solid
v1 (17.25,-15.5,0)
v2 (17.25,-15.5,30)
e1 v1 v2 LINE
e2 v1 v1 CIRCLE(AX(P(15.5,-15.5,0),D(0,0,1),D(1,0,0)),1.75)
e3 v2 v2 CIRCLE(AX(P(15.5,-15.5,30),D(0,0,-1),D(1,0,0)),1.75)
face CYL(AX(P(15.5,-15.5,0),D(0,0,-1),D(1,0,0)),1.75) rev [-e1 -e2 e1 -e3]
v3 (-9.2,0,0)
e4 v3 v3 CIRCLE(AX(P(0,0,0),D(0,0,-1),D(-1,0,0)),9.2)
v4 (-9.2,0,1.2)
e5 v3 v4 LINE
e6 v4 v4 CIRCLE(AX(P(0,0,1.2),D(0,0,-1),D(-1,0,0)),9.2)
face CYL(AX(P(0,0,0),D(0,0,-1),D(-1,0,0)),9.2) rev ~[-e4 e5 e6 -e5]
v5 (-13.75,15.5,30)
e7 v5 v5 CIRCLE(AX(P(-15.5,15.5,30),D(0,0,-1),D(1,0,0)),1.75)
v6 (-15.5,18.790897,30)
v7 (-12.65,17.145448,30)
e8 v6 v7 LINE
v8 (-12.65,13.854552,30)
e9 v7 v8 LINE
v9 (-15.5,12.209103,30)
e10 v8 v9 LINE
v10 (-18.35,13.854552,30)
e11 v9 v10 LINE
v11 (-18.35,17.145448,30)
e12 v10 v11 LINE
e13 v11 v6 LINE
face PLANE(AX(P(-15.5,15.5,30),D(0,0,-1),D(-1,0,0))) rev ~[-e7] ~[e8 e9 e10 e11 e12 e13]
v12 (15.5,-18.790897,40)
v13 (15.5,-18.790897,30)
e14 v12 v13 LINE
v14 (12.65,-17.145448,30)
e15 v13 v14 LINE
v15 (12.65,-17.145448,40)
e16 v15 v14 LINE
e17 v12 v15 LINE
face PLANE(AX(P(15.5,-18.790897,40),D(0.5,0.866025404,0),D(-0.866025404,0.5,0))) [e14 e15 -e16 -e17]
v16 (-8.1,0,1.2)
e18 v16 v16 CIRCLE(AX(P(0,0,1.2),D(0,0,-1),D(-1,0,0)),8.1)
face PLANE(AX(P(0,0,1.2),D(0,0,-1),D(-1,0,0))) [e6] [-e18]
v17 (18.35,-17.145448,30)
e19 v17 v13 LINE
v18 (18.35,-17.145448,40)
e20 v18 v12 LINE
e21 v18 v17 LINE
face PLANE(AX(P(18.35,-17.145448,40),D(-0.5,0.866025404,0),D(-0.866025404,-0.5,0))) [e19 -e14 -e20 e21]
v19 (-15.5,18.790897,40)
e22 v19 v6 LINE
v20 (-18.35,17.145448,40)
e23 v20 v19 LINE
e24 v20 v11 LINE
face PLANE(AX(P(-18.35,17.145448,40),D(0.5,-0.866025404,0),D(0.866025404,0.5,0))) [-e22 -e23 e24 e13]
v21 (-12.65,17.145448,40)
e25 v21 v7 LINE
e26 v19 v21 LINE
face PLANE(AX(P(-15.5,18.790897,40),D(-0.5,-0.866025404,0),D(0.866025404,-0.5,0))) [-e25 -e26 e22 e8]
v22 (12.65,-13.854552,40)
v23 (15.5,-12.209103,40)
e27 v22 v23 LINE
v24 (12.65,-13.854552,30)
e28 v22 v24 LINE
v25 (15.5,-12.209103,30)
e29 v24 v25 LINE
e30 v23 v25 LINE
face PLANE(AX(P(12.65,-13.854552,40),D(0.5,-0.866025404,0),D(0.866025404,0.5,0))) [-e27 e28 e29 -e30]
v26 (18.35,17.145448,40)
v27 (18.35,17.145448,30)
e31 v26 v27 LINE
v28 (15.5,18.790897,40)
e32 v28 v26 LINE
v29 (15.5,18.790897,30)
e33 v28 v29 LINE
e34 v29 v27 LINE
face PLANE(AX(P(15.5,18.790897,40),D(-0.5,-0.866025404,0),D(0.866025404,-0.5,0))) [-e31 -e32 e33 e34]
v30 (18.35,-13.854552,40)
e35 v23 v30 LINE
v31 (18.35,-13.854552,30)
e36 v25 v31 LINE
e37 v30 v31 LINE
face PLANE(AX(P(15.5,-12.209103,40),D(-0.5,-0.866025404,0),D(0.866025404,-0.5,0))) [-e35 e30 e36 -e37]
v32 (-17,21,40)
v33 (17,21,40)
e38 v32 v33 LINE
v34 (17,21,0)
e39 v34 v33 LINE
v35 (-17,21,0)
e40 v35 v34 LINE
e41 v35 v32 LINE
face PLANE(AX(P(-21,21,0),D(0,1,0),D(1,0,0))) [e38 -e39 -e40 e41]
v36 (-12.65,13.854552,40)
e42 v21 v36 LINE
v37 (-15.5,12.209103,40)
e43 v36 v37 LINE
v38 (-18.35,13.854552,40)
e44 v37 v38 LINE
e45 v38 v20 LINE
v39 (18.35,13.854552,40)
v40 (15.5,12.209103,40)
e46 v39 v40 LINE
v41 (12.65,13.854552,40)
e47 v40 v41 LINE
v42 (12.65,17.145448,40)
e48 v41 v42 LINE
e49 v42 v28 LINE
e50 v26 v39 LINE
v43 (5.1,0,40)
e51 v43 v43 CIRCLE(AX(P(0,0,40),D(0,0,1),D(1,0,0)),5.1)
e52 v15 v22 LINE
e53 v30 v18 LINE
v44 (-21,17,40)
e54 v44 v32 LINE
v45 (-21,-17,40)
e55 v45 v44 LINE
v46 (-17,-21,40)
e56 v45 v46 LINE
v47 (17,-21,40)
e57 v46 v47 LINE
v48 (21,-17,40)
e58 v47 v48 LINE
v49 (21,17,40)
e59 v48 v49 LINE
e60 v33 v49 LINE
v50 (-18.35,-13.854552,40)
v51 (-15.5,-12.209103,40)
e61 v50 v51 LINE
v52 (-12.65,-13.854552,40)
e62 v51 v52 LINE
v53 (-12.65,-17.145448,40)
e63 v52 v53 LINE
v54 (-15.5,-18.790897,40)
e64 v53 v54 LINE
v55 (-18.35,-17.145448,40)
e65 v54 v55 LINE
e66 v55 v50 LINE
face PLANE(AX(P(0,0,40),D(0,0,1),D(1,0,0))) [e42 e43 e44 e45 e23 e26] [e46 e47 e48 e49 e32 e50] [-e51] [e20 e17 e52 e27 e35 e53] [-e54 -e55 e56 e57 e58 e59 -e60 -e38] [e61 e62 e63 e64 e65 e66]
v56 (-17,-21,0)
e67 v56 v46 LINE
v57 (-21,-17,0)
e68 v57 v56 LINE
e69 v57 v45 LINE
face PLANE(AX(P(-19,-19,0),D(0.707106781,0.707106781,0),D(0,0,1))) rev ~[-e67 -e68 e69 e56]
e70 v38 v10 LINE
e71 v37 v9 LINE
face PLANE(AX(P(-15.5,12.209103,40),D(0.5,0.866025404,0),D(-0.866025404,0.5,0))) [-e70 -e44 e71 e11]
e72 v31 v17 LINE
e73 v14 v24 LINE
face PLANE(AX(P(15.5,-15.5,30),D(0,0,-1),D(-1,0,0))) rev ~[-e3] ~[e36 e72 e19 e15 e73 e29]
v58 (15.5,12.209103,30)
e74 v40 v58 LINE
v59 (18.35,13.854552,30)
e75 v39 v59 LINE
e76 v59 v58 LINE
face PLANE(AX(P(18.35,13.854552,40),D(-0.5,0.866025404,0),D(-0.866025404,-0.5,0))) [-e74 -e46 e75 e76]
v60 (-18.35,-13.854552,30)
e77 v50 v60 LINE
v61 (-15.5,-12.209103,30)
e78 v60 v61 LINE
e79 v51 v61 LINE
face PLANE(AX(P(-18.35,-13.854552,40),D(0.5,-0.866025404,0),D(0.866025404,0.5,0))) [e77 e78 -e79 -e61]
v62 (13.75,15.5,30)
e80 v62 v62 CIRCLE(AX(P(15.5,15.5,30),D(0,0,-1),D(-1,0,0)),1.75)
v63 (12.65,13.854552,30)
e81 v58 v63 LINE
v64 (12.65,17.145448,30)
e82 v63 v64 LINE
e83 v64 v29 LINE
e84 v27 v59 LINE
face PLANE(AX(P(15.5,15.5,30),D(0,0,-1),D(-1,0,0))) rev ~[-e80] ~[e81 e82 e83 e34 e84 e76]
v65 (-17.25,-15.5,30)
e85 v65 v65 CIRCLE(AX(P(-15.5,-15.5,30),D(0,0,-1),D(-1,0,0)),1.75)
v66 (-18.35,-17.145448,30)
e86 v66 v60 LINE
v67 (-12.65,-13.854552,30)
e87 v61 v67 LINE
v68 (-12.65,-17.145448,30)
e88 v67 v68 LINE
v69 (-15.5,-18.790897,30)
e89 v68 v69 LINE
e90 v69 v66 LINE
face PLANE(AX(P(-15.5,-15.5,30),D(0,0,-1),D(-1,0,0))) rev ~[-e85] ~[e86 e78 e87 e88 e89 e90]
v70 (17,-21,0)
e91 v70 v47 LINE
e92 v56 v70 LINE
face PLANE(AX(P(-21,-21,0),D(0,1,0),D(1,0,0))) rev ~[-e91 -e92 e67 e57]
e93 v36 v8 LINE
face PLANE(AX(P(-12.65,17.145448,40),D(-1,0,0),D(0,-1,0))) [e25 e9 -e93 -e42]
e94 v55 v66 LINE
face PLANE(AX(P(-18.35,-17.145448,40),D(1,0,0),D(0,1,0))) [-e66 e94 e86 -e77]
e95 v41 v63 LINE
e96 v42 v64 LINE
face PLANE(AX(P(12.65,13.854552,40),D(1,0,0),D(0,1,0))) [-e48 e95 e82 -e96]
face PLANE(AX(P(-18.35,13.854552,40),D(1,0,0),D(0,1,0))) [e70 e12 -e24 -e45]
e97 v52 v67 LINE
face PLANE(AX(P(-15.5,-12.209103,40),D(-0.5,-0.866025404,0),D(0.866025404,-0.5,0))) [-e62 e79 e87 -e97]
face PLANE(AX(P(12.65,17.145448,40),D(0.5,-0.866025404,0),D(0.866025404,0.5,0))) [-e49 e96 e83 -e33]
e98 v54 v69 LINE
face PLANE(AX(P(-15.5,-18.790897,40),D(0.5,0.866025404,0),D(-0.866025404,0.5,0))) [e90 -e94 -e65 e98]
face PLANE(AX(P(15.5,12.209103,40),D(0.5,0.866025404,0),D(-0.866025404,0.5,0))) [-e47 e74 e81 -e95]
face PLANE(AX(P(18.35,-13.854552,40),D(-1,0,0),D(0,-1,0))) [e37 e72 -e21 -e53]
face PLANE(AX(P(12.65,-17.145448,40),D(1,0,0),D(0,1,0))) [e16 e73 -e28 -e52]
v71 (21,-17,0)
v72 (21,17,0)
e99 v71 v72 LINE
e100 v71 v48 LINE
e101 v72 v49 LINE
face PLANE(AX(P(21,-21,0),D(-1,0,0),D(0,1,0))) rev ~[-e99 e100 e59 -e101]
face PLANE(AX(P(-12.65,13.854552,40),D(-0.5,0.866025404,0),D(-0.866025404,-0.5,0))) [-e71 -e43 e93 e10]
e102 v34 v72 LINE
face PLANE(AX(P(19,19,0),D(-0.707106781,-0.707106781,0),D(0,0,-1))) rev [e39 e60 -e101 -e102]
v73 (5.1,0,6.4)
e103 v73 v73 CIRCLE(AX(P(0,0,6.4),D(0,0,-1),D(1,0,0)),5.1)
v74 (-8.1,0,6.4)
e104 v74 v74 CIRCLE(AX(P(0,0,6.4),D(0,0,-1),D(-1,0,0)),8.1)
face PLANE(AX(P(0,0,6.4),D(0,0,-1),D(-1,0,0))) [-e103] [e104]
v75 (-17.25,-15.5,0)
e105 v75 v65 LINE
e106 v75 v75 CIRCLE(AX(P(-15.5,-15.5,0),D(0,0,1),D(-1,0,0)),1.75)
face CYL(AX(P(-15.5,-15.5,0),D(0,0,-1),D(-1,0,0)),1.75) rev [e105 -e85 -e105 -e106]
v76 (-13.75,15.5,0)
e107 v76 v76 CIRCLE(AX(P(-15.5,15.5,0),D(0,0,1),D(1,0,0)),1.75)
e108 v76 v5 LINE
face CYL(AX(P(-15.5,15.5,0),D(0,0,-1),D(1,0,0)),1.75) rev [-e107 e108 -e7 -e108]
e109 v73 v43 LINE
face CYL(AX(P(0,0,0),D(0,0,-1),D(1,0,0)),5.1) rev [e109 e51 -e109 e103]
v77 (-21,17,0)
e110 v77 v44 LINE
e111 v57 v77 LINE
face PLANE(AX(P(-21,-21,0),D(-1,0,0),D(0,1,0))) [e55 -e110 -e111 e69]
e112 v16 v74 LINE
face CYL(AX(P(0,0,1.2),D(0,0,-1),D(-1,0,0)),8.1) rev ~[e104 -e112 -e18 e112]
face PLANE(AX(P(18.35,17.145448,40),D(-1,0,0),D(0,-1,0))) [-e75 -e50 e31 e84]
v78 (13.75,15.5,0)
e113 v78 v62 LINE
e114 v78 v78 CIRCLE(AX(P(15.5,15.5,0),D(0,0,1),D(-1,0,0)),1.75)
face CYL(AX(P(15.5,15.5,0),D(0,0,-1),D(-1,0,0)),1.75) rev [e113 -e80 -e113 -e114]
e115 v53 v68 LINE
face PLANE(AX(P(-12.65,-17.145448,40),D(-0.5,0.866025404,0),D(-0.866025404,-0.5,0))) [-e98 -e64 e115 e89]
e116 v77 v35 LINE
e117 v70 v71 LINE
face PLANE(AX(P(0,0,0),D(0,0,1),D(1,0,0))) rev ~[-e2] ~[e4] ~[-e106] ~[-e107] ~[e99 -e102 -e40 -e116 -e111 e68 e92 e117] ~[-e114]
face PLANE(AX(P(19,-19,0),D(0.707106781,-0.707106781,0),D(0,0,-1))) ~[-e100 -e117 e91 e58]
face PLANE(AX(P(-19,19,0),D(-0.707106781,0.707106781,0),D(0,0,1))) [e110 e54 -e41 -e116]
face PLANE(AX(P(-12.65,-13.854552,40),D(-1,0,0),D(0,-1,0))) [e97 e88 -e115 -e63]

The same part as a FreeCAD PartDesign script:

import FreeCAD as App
import Part
import Sketcher

V = App.Vector
Q = App.Units.Quantity


def edges_at(feature, points):
    """Names of the edges that pass closest to the given points."""
    edges = feature.Shape.Edges
    near = lambda p: min(range(len(edges)), key=lambda i: edges[i].distToShape(Part.Vertex(*p))[0])
    return sorted({f"Edge{near(p) + 1}" for p in points})


def add_polygon(sketch, points):
    """Adds a closed chain of lines whose ends are joined by coincident constraints."""
    first, n = sketch.GeometryCount, len(points)
    for a, b in zip(points, points[1:] + points[:1]):
        sketch.addGeometry(Part.LineSegment(App.Vector(*a, 0), App.Vector(*b, 0)), False)
    for i in range(n):
        sketch.addConstraint(Sketcher.Constraint("Coincident", first + i, 2, first + (i + 1) % n, 1))

doc = App.newDocument("Part")
body = doc.addObject("PartDesign::Body", "Body")

# Sketch on XY plane
sketch1 = body.newObject("Sketcher::SketchObject", "Sketch")
sketch1.AttachmentSupport = (doc.getObject("XY_Plane"), [""])
sketch1.MapMode = "FlatFace"
add_polygon(sketch1, [(-21, 21), (-21, -21), (21, -21), (21, 21)])  # lines 0-3
sketch1.addGeometry(Part.Circle(V(-15.5, -15.5, 0), V(0, 0, 1), 1.8), False)  # 4
sketch1.addGeometry(Part.Circle(V(15.5, -15.5, 0), V(0, 0, 1), 1.8), False)  # 5
sketch1.addGeometry(Part.Circle(V(-15.5, 15.5, 0), V(0, 0, 1), 1.8), False)  # 6
sketch1.addGeometry(Part.Circle(V(0, 0, 0), V(0, 0, 1), 5.1), False)  # 7
sketch1.addGeometry(Part.Circle(V(15.5, 15.5, 0), V(0, 0, 1), 1.8), False)  # 8
sketch1.addConstraint([
    Sketcher.Constraint("Vertical", 0),
    Sketcher.Constraint("Horizontal", 1),
    Sketcher.Constraint("Vertical", 2),
    Sketcher.Constraint("Horizontal", 3),
    Sketcher.Constraint("Coincident", 7, 3, -1, 1),
    Sketcher.Constraint("Equal", 4, 5),
    Sketcher.Constraint("Equal", 5, 6),
    Sketcher.Constraint("Equal", 6, 8),
    Sketcher.Constraint("Symmetric", 5, 3, 6, 3, -1, 1),
    Sketcher.Constraint("Symmetric", 4, 3, 8, 3, -1, 1),
    Sketcher.Constraint("Symmetric", 0, 2, 2, 2, -1, 1),
    Sketcher.Constraint("Symmetric", 4, 3, 5, 3, -2),
    Sketcher.Constraint("Equal", 3, 0),
    Sketcher.Constraint("Diameter", 4, 3.5),
    Sketcher.Constraint("Diameter", 7, 10.2),
    Sketcher.Constraint("DistanceX", 1, 1, 1, 2, 42.0),
    Sketcher.Constraint("DistanceX", 4, 3, 5, 3, 31.0),
    Sketcher.Constraint("DistanceY", 4, 3, 6, 3, 31.0),
])
pad1 = body.newObject("PartDesign::Pad", "Pad")
pad1.Profile = sketch1
pad1.Length = 40
doc.recompute()

chamfer = body.newObject("PartDesign::Chamfer", "Chamfer")
chamfer.Base = (pad1, edges_at(pad1, [
    (-21, 21, 20),
    (21, 21, 20),
    (21, -21, 20),
    (-21, -21, 20),
]))
chamfer.Size = 4

# Sketch on XY plane
sketch2 = body.newObject("Sketcher::SketchObject", "Sketch001")
sketch2.AttachmentSupport = (doc.getObject("XY_Plane"), [""])
sketch2.MapMode = "FlatFace"
sketch2.AttachmentOffset = App.Placement(V(0, 0, 40), App.Rotation())
add_polygon(sketch2, [(-15.5, -12.2), (-12.7, -13.9), (-12.7, -17.1), (-15.5, -18.8), (-18.4, -17.1), (-18.4, -13.9)])  # lines 0-5
add_polygon(sketch2, [(15.5, -12.2), (18.4, -13.9), (18.4, -17.1), (15.5, -18.8), (12.7, -17.1), (12.7, -13.9)])  # lines 6-11
add_polygon(sketch2, [(15.5, 12.2), (12.7, 13.9), (12.7, 17.1), (15.5, 18.8), (18.4, 17.1), (18.4, 13.9)])  # lines 12-17
add_polygon(sketch2, [(-15.5, 12.2), (-18.4, 13.9), (-18.4, 17.1), (-15.5, 18.8), (-12.7, 17.1), (-12.7, 13.9)])  # lines 18-23
sketch2.addConstraint([
    Sketcher.Constraint("Vertical", 1),
    Sketcher.Constraint("Vertical", 4),
    Sketcher.Constraint("Vertical", 7),
    Sketcher.Constraint("Vertical", 10),
    Sketcher.Constraint("Vertical", 13),
    Sketcher.Constraint("Vertical", 16),
    Sketcher.Constraint("Vertical", 19),
    Sketcher.Constraint("Vertical", 22),
    Sketcher.Constraint("Symmetric", 0, 2, 12, 2, -1, 1),
    Sketcher.Constraint("Symmetric", 2, 2, 14, 2, -1, 1),
    Sketcher.Constraint("Symmetric", 3, 2, 15, 2, -1, 1),
    Sketcher.Constraint("Symmetric", 5, 2, 17, 2, -1, 1),
    Sketcher.Constraint("Symmetric", 6, 2, 18, 2, -1, 1),
    Sketcher.Constraint("Symmetric", 8, 2, 20, 2, -1, 1),
    Sketcher.Constraint("Symmetric", 9, 2, 21, 2, -1, 1),
    Sketcher.Constraint("Symmetric", 11, 2, 23, 2, -1, 1),
    Sketcher.Constraint("Symmetric", 4, 2, 6, 2, -2),
    Sketcher.Constraint("Symmetric", 2, 2, 8, 2, -2),
    Sketcher.Constraint("Symmetric", 1, 2, 9, 2, -2),
    Sketcher.Constraint("Symmetric", 5, 2, 11, 2, -2),
    Sketcher.Constraint("Parallel", 0, 3),
    Sketcher.Constraint("Parallel", 2, 5),
    Sketcher.Constraint("Parallel", 3, 6),
    Sketcher.Constraint("Parallel", 5, 8),
    Sketcher.Constraint("Parallel", 8, 11),
    Sketcher.Constraint("Parallel", 11, 14),
    Sketcher.Constraint("Parallel", 14, 17),
    Sketcher.Constraint("Parallel", 17, 20),
    Sketcher.Constraint("Parallel", 20, 23),
    Sketcher.Constraint("Horizontal", 1, 2, 3, 2),
    Sketcher.Constraint("Horizontal", 0, 2, 4, 2),
    Sketcher.Constraint("Angle", 0, Q("-30 deg")),
    Sketcher.Constraint("DistanceX", 0, 2, 6, 2, 31.0),
    Sketcher.Constraint("DistanceY", 9, 2, 12, 2, 31.0),
    Sketcher.Constraint("DistanceX", 3, 2, 1, 2, 5.7),
    Sketcher.Constraint("DistanceY", 1, 2, 1, 1, 3.290897),
])
pocket1 = body.newObject("PartDesign::Pocket", "Pocket")
pocket1.Profile = sketch2
pocket1.Length = 10

# Sketch on XY plane
sketch3 = body.newObject("Sketcher::SketchObject", "Sketch002")
sketch3.AttachmentSupport = (doc.getObject("XY_Plane"), [""])
sketch3.MapMode = "FlatFace"
sketch3.addGeometry(Part.Circle(V(0, 0, 0), V(0, 0, 1), 9), False)
sketch3.addConstraint([
    Sketcher.Constraint("Coincident", 0, 3, -1, 1),
    Sketcher.Constraint("Diameter", 0, 18.4),
])
pocket2 = body.newObject("PartDesign::Pocket", "Pocket001")
pocket2.Profile = sketch3
pocket2.Length = 1.2
pocket2.Reversed = True

# Sketch on XY plane
sketch4 = body.newObject("Sketcher::SketchObject", "Sketch003")
sketch4.AttachmentSupport = (doc.getObject("XY_Plane"), [""])
sketch4.MapMode = "FlatFace"
sketch4.AttachmentOffset = App.Placement(V(0, 0, 1.2), App.Rotation())
sketch4.addGeometry(Part.Circle(V(0, 0, 0), V(0, 0, 1), 8), False)
sketch4.addConstraint([
    Sketcher.Constraint("Coincident", 0, 3, -1, 1),
    Sketcher.Constraint("Diameter", 0, 16.2),
])
pocket3 = body.newObject("PartDesign::Pocket", "Pocket002")
pocket3.Profile = sketch4
pocket3.Length = 5.2
pocket3.Reversed = True

doc.recompute()
